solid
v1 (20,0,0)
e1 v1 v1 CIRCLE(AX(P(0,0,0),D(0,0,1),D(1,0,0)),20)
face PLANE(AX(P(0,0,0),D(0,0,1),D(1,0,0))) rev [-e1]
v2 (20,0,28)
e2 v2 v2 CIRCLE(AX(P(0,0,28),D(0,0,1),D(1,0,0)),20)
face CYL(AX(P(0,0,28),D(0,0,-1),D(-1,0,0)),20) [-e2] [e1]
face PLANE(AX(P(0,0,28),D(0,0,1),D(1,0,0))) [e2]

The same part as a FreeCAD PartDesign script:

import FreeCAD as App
import Part
import Sketcher
Q = App.Units.Quantity

doc = App.newDocument("Part")
body = doc.addObject("PartDesign::Body", "Body")

sketch1 = doc.addObject("Sketcher::SketchObject", "Sketch")
body.addObject(sketch1)
sketch1.AttachmentSupport = (doc.XY_Plane, [""])
sketch1.MapMode = "FlatFace"
sketch1.addGeometry(Part.Circle(App.Vector(0, 0, 0), App.Vector(0, 0, 1), 20), False)
sketch1.addConstraint([
    Sketcher.Constraint("Coincident", 0, 3, -1, 1),
    Sketcher.Constraint("Diameter", 0, Q("40 mm")),
])
pad1 = doc.addObject("PartDesign::Pad", "Pad")
body.addObject(pad1)
pad1.Profile = sketch1
pad1.Length = 28

doc.recompute()
